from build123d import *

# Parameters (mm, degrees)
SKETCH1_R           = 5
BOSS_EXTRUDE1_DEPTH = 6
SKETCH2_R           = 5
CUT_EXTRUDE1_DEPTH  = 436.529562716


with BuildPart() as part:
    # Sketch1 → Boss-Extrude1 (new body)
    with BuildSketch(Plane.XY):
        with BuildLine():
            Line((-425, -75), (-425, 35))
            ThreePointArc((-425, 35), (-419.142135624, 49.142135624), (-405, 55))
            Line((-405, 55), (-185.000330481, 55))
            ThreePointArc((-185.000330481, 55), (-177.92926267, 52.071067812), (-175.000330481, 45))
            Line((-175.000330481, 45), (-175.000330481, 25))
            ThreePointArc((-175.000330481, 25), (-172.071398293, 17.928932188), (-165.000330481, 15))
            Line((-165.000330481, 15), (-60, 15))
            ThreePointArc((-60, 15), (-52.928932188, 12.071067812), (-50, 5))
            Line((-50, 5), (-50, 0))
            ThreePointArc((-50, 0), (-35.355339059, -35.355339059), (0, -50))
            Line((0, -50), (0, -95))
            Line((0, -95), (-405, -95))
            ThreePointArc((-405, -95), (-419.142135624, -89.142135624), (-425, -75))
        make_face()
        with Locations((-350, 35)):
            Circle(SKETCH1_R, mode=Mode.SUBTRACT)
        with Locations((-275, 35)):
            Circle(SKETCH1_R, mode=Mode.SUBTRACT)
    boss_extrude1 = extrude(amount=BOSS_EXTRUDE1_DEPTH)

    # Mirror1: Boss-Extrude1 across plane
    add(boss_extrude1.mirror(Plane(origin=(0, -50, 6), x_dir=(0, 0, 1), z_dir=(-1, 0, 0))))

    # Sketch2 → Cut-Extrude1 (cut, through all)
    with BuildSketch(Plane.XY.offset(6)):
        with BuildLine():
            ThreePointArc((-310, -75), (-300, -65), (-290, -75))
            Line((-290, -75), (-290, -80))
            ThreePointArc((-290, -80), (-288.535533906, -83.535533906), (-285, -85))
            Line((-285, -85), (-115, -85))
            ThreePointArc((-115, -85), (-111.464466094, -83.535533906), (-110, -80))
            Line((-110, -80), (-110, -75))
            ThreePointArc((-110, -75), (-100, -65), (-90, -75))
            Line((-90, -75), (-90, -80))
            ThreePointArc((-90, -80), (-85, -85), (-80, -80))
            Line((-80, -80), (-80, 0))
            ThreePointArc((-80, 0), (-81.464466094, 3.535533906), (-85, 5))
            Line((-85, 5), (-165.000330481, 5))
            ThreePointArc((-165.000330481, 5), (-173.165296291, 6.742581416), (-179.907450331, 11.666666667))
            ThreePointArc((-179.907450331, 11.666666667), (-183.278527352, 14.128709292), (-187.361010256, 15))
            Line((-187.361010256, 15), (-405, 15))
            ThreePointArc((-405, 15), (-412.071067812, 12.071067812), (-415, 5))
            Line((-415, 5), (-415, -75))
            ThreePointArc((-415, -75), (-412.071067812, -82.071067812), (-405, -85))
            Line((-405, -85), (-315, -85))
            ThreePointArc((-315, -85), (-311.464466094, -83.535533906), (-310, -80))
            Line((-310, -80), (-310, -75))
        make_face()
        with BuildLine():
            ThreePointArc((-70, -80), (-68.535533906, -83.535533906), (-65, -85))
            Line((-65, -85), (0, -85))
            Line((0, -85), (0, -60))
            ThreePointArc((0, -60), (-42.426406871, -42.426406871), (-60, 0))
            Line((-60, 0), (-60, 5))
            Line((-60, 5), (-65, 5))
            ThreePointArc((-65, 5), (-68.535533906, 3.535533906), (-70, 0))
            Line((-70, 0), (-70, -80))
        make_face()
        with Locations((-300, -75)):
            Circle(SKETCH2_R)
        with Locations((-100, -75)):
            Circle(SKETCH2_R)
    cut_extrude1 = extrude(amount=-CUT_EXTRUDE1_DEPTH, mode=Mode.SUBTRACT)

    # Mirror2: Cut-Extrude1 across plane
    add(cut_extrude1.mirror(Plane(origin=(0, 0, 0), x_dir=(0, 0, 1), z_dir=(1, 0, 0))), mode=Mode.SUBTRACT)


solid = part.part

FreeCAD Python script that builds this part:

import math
import FreeCAD as App
import Part
import Sketcher

doc = App.newDocument("Part")
body = doc.addObject("PartDesign::Body", "Body")

# Sketch on XY plane
sketch1 = body.newObject("Sketcher::SketchObject", "Sketch")
sketch1.AttachmentSupport = (doc.getObject("XY_Plane"), [""])
sketch1.MapMode = "FlatFace"
sketch1.addGeometry([
    Part.LineSegment(App.Vector(-425, 35, 0), App.Vector(-425, -75, 0)),  # 0
    Part.ArcOfCircle(Part.Circle(App.Vector(-405, -75, 0), App.Vector(0, 0, 1), 20), math.radians(180), math.radians(270)),  # 1
    Part.LineSegment(App.Vector(-405, -95, 0), App.Vector(0, -95, 0)),  # 2
    Part.LineSegment(App.Vector(0, -95, 0), App.Vector(0, -50, 0)),  # 3
    Part.ArcOfCircle(Part.Circle(App.Vector(0, 0, 0), App.Vector(0, 0, 1), 50), math.radians(-180), math.radians(-90)),  # 4
    Part.LineSegment(App.Vector(-50, 0, 0), App.Vector(-50, 5, 0)),  # 5
    Part.ArcOfCircle(Part.Circle(App.Vector(-60, 5, 0), App.Vector(0, 0, 1), 10), math.radians(0), math.radians(90)),  # 6
    Part.LineSegment(App.Vector(-60, 15, 0), App.Vector(-165, 15, 0)),  # 7
    Part.ArcOfCircle(Part.Circle(App.Vector(-165, 25, 0), App.Vector(0, 0, 1), 10), math.radians(180), math.radians(270)),  # 8
    Part.LineSegment(App.Vector(-175, 25, 0), App.Vector(-175, 45, 0)),  # 9
    Part.ArcOfCircle(Part.Circle(App.Vector(-185, 45, 0), App.Vector(0, 0, 1), 10), math.radians(0), math.radians(90)),  # 10
    Part.LineSegment(App.Vector(-185, 55, 0), App.Vector(-405, 55, 0)),  # 11
    Part.ArcOfCircle(Part.Circle(App.Vector(-405, 35, 0), App.Vector(0, 0, 1), 20), math.radians(90), math.radians(180)),  # 12
    Part.Circle(App.Vector(-275, 35, 0), App.Vector(0, 0, 1), 5),  # 13
    Part.Circle(App.Vector(-350, 35, 0), App.Vector(0, 0, 1), 5),  # 14
], False)
sketch1.addConstraint([
    Sketcher.Constraint("Tangent", 0, 2, 1, 1),
    Sketcher.Constraint("Tangent", 1, 2, 2, 1),
    Sketcher.Constraint("Coincident", 2, 2, 3, 1),
    Sketcher.Constraint("Coincident", 3, 2, 4, 2),
    Sketcher.Constraint("Tangent", 4, 1, 5, 1),
    Sketcher.Constraint("Tangent", 5, 2, 6, 1),
    Sketcher.Constraint("Tangent", 6, 2, 7, 1),
    Sketcher.Constraint("Tangent", 7, 2, 8, 2),
    Sketcher.Constraint("Tangent", 8, 1, 9, 1),
    Sketcher.Constraint("Tangent", 9, 2, 10, 1),
    Sketcher.Constraint("Tangent", 10, 2, 11, 1),
    Sketcher.Constraint("Tangent", 11, 2, 12, 1),
    Sketcher.Constraint("Tangent", 12, 2, 0, 1),
    Sketcher.Constraint("Vertical", 0),
    Sketcher.Constraint("Horizontal", 2),
    Sketcher.Constraint("Vertical", 3),
    Sketcher.Constraint("Vertical", 5),
    Sketcher.Constraint("Horizontal", 7),
    Sketcher.Constraint("Vertical", 9),
    Sketcher.Constraint("Horizontal", 11),
    Sketcher.Constraint("Coincident", 4, 3, -1, 1),
    Sketcher.Constraint("Equal", 6, 8),
    Sketcher.Constraint("Equal", 8, 10),
    Sketcher.Constraint("Equal", 1, 12),
    Sketcher.Constraint("Equal", 13, 14),
    Sketcher.Constraint("PointOnObject", 2, 2, -2),
    Sketcher.Constraint("Horizontal", 12, 3, 13, 3),
    Sketcher.Constraint("Horizontal", 13, 3, 14, 3),
    Sketcher.Constraint("Diameter", 13, 10.0),
    Sketcher.Constraint("Radius", 1, 20.0),
    Sketcher.Constraint("Radius", 4, 50.0),
    Sketcher.Constraint("Radius", 6, 10.0),
    Sketcher.Constraint("DistanceX", 2, 1, 2, 2, 405.0),
    Sketcher.Constraint("DistanceY", 0, 2, 0, 1, 110.0),
    Sketcher.Constraint("DistanceY", 3, 1, 3, 2, 45.0),
    Sketcher.Constraint("DistanceY", 5, 1, 5, 2, 5.0),
    Sketcher.Constraint("DistanceX", 13, 3, -1, 1, 275.0),
    Sketcher.Constraint("DistanceX", 14, 3, -1, 1, 350.0),
    Sketcher.Constraint("DistanceX", 7, 2, 7, 1, 105.00033),
])
pad1 = body.newObject("PartDesign::Pad", "Pad")
pad1.Profile = sketch1
pad1.Length = 6
doc.recompute()

mirrored = body.newObject("PartDesign::Mirrored", "Mirrored")
mirrored.Originals = [pad1]
mirrored.MirrorPlane = (doc.getObject("YZ_Plane"), [""])
body.Tip = mirrored

# Sketch on XY plane
sketch2 = body.newObject("Sketcher::SketchObject", "Sketch001")
sketch2.AttachmentSupport = (doc.getObject("XY_Plane"), [""])
sketch2.MapMode = "FlatFace"
sketch2.AttachmentOffset = App.Placement(App.Vector(0, 0, 6), App.Rotation())
sketch2.addGeometry([
    Part.ArcOfCircle(Part.Circle(App.Vector(-300, -75, 0), App.Vector(0, 0, 1), 10), math.radians(0), math.radians(180)),  # 0
    Part.LineSegment(App.Vector(-290, -75, 0), App.Vector(-290, -80, 0)),  # 1
    Part.ArcOfCircle(Part.Circle(App.Vector(-285, -80, 0), App.Vector(0, 0, 1), 5), math.radians(180), math.radians(270)),  # 2
    Part.LineSegment(App.Vector(-285, -85, 0), App.Vector(-115, -85, 0)),  # 3
    Part.ArcOfCircle(Part.Circle(App.Vector(-115, -80, 0), App.Vector(0, 0, 1), 5), math.radians(-90), math.radians(0)),  # 4
    Part.LineSegment(App.Vector(-110, -80, 0), App.Vector(-110, -75, 0)),  # 5
    Part.ArcOfCircle(Part.Circle(App.Vector(-100, -75, 0), App.Vector(0, 0, 1), 10), math.radians(0), math.radians(180)),  # 6
    Part.LineSegment(App.Vector(-90, -75, 0), App.Vector(-90, -80, 0)),  # 7
    Part.ArcOfCircle(Part.Circle(App.Vector(-85, -80, 0), App.Vector(0, 0, 1), 5), math.radians(180), math.radians(360)),  # 8
    Part.LineSegment(App.Vector(-80, -80, 0), App.Vector(-80, 0, 0)),  # 9
    Part.ArcOfCircle(Part.Circle(App.Vector(-85, 0, 0), App.Vector(0, 0, 1), 5), math.radians(0), math.radians(90)),  # 10
    Part.LineSegment(App.Vector(-85, 5, 0), App.Vector(-165, 5, 0)),  # 11
    Part.ArcOfCircle(Part.Circle(App.Vector(-165, 25, 0), App.Vector(0, 0, 1), 20), math.radians(-138), math.radians(-90)),  # 12
    Part.ArcOfCircle(Part.Circle(App.Vector(-187, 5, 0), App.Vector(0, 0, 1), 10), math.radians(42), math.radians(90)),  # 13
    Part.LineSegment(App.Vector(-187, 15, 0), App.Vector(-405, 15, 0)),  # 14
    Part.ArcOfCircle(Part.Circle(App.Vector(-405, 5, 0), App.Vector(0, 0, 1), 10), math.radians(90), math.radians(180)),  # 15
    Part.LineSegment(App.Vector(-415, 5, 0), App.Vector(-415, -75, 0)),  # 16
    Part.ArcOfCircle(Part.Circle(App.Vector(-405, -75, 0), App.Vector(0, 0, 1), 10), math.radians(180), math.radians(270)),  # 17
    Part.LineSegment(App.Vector(-405, -85, 0), App.Vector(-315, -85, 0)),  # 18
    Part.ArcOfCircle(Part.Circle(App.Vector(-315, -80, 0), App.Vector(0, 0, 1), 5), math.radians(-90), math.radians(0)),  # 19
    Part.LineSegment(App.Vector(-310, -80, 0), App.Vector(-310, -75, 0)),  # 20
    Part.ArcOfCircle(Part.Circle(App.Vector(-65, -80, 0), App.Vector(0, 0, 1), 5), math.radians(180), math.radians(270)),  # 21
    Part.LineSegment(App.Vector(-65, -85, 0), App.Vector(0, -85, 0)),  # 22
    Part.LineSegment(App.Vector(0, -85, 0), App.Vector(0, -60, 0)),  # 23
    Part.ArcOfCircle(Part.Circle(App.Vector(0, 0, 0), App.Vector(0, 0, 1), 60), math.radians(-180), math.radians(-90)),  # 24
    Part.LineSegment(App.Vector(-60, 0, 0), App.Vector(-60, 5, 0)),  # 25
    Part.LineSegment(App.Vector(-60, 5, 0), App.Vector(-65, 5, 0)),  # 26
    Part.ArcOfCircle(Part.Circle(App.Vector(-65, 0, 0), App.Vector(0, 0, 1), 5), math.radians(90), math.radians(180)),  # 27
    Part.LineSegment(App.Vector(-70, 0, 0), App.Vector(-70, -80, 0)),  # 28
    Part.Circle(App.Vector(-300, -75, 0), App.Vector(0, 0, 1), 5),  # 29
    Part.Circle(App.Vector(-100, -75, 0), App.Vector(0, 0, 1), 5),  # 30
], False)
sketch2.addConstraint([
    Sketcher.Constraint("Tangent", 0, 1, 1, 1),
    Sketcher.Constraint("Tangent", 1, 2, 2, 1),
    Sketcher.Constraint("Tangent", 2, 2, 3, 1),
    Sketcher.Constraint("Tangent", 3, 2, 4, 1),
    Sketcher.Constraint("Tangent", 4, 2, 5, 1),
    Sketcher.Constraint("Tangent", 5, 2, 6, 2),
    Sketcher.Constraint("Tangent", 6, 1, 7, 1),
    Sketcher.Constraint("Tangent", 7, 2, 8, 1),
    Sketcher.Constraint("Tangent", 8, 2, 9, 1),
    Sketcher.Constraint("Tangent", 9, 2, 10, 1),
    Sketcher.Constraint("Tangent", 10, 2, 11, 1),
    Sketcher.Constraint("Tangent", 11, 2, 12, 2),
    Sketcher.Constraint("Tangent", 12, 1, 13, 1),
    Sketcher.Constraint("Tangent", 13, 2, 14, 1),
    Sketcher.Constraint("Tangent", 14, 2, 15, 1),
    Sketcher.Constraint("Tangent", 15, 2, 16, 1),
    Sketcher.Constraint("Tangent", 16, 2, 17, 1),
    Sketcher.Constraint("Tangent", 17, 2, 18, 1),
    Sketcher.Constraint("Tangent", 18, 2, 19, 1),
    Sketcher.Constraint("Tangent", 19, 2, 20, 1),
    Sketcher.Constraint("Tangent", 20, 2, 0, 2),
    Sketcher.Constraint("Tangent", 21, 2, 22, 1),
    Sketcher.Constraint("Coincident", 22, 2, 23, 1),
    Sketcher.Constraint("Coincident", 23, 2, 24, 2),
    Sketcher.Constraint("Tangent", 24, 1, 25, 1),
    Sketcher.Constraint("Coincident", 25, 2, 26, 1),
    Sketcher.Constraint("Tangent", 26, 2, 27, 1),
    Sketcher.Constraint("Tangent", 27, 2, 28, 1),
    Sketcher.Constraint("Tangent", 28, 2, 21, 1),
    Sketcher.Constraint("Vertical", 1),
    Sketcher.Constraint("Horizontal", 3),
    Sketcher.Constraint("Vertical", 5),
    Sketcher.Constraint("Vertical", 7),
    Sketcher.Constraint("Vertical", 9),
    Sketcher.Constraint("Horizontal", 11),
    Sketcher.Constraint("Horizontal", 14),
    Sketcher.Constraint("Vertical", 16),
    Sketcher.Constraint("Horizontal", 18),
    Sketcher.Constraint("Vertical", 20),
    Sketcher.Constraint("Horizontal", 22),
    Sketcher.Constraint("Vertical", 23),
    Sketcher.Constraint("Vertical", 25),
    Sketcher.Constraint("Horizontal", 26),
    Sketcher.Constraint("Vertical", 28),
    Sketcher.Constraint("Coincident", 24, 3, -1, 1),
    Sketcher.Constraint("Coincident", 29, 3, 0, 3),
    Sketcher.Constraint("Coincident", 30, 3, 6, 3),
    Sketcher.Constraint("Equal", 2, 4),
    Sketcher.Constraint("Equal", 0, 6),
    Sketcher.Constraint("Equal", 4, 8),
    Sketcher.Constraint("Equal", 8, 10),
    Sketcher.Constraint("Equal", 6, 13),
    Sketcher.Constraint("Equal", 13, 15),
    Sketcher.Constraint("Equal", 15, 17),
    Sketcher.Constraint("Equal", 10, 19),
    Sketcher.Constraint("Equal", 19, 21),
    Sketcher.Constraint("Equal", 21, 27),
    Sketcher.Constraint("Equal", 27, 29),
    Sketcher.Constraint("Equal", 29, 30),
    Sketcher.Constraint("PointOnObject", 10, 3, -1),
    Sketcher.Constraint("PointOnObject", 27, 3, -1),
    Sketcher.Constraint("PointOnObject", 22, 2, -2),
    Sketcher.Constraint("Horizontal", 0, 3, 6, 3),
    Sketcher.Constraint("Horizontal", 4, 3, 8, 3),
    Sketcher.Constraint("Horizontal", 6, 3, 17, 3),
    Sketcher.Constraint("Horizontal", 8, 3, 19, 3),
    Sketcher.Constraint("Horizontal", 19, 3, 21, 3),
    Sketcher.Constraint("Horizontal", 15, 3, 10, 2),
    Sketcher.Constraint("Equal", 26, 1),
    Sketcher.Constraint("Equal", 9, 16),
    Sketcher.Constraint("Diameter", 29, 10.0),
    Sketcher.Constraint("Radius", 12, 20.0),
    Sketcher.Constraint("Radius", 24, 60.0),
    Sketcher.Constraint("DistanceX", 3, 1, 3, 2, 170.0),
    Sketcher.Constraint("DistanceX", 18, 1, 18, 2, 90.0),
    Sketcher.Constraint("DistanceY", 9, 1, 9, 2, 80.0),
    Sketcher.Constraint("DistanceX", 0, 3, -1, 1, 300.0),
    Sketcher.Constraint("DistanceX", 11, 2, 11, 1, 80.00033),
])
pocket1 = body.newObject("PartDesign::Pocket", "Pocket")
pocket1.Profile = sketch2
pocket1.Type = "ThroughAll"
doc.recompute()

mirrored2 = body.newObject("PartDesign::Mirrored", "Mirrored001")
mirrored2.Originals = [pocket1]
mirrored2.MirrorPlane = (doc.getObject("YZ_Plane"), [""])
body.Tip = mirrored2

doc.recompute()
